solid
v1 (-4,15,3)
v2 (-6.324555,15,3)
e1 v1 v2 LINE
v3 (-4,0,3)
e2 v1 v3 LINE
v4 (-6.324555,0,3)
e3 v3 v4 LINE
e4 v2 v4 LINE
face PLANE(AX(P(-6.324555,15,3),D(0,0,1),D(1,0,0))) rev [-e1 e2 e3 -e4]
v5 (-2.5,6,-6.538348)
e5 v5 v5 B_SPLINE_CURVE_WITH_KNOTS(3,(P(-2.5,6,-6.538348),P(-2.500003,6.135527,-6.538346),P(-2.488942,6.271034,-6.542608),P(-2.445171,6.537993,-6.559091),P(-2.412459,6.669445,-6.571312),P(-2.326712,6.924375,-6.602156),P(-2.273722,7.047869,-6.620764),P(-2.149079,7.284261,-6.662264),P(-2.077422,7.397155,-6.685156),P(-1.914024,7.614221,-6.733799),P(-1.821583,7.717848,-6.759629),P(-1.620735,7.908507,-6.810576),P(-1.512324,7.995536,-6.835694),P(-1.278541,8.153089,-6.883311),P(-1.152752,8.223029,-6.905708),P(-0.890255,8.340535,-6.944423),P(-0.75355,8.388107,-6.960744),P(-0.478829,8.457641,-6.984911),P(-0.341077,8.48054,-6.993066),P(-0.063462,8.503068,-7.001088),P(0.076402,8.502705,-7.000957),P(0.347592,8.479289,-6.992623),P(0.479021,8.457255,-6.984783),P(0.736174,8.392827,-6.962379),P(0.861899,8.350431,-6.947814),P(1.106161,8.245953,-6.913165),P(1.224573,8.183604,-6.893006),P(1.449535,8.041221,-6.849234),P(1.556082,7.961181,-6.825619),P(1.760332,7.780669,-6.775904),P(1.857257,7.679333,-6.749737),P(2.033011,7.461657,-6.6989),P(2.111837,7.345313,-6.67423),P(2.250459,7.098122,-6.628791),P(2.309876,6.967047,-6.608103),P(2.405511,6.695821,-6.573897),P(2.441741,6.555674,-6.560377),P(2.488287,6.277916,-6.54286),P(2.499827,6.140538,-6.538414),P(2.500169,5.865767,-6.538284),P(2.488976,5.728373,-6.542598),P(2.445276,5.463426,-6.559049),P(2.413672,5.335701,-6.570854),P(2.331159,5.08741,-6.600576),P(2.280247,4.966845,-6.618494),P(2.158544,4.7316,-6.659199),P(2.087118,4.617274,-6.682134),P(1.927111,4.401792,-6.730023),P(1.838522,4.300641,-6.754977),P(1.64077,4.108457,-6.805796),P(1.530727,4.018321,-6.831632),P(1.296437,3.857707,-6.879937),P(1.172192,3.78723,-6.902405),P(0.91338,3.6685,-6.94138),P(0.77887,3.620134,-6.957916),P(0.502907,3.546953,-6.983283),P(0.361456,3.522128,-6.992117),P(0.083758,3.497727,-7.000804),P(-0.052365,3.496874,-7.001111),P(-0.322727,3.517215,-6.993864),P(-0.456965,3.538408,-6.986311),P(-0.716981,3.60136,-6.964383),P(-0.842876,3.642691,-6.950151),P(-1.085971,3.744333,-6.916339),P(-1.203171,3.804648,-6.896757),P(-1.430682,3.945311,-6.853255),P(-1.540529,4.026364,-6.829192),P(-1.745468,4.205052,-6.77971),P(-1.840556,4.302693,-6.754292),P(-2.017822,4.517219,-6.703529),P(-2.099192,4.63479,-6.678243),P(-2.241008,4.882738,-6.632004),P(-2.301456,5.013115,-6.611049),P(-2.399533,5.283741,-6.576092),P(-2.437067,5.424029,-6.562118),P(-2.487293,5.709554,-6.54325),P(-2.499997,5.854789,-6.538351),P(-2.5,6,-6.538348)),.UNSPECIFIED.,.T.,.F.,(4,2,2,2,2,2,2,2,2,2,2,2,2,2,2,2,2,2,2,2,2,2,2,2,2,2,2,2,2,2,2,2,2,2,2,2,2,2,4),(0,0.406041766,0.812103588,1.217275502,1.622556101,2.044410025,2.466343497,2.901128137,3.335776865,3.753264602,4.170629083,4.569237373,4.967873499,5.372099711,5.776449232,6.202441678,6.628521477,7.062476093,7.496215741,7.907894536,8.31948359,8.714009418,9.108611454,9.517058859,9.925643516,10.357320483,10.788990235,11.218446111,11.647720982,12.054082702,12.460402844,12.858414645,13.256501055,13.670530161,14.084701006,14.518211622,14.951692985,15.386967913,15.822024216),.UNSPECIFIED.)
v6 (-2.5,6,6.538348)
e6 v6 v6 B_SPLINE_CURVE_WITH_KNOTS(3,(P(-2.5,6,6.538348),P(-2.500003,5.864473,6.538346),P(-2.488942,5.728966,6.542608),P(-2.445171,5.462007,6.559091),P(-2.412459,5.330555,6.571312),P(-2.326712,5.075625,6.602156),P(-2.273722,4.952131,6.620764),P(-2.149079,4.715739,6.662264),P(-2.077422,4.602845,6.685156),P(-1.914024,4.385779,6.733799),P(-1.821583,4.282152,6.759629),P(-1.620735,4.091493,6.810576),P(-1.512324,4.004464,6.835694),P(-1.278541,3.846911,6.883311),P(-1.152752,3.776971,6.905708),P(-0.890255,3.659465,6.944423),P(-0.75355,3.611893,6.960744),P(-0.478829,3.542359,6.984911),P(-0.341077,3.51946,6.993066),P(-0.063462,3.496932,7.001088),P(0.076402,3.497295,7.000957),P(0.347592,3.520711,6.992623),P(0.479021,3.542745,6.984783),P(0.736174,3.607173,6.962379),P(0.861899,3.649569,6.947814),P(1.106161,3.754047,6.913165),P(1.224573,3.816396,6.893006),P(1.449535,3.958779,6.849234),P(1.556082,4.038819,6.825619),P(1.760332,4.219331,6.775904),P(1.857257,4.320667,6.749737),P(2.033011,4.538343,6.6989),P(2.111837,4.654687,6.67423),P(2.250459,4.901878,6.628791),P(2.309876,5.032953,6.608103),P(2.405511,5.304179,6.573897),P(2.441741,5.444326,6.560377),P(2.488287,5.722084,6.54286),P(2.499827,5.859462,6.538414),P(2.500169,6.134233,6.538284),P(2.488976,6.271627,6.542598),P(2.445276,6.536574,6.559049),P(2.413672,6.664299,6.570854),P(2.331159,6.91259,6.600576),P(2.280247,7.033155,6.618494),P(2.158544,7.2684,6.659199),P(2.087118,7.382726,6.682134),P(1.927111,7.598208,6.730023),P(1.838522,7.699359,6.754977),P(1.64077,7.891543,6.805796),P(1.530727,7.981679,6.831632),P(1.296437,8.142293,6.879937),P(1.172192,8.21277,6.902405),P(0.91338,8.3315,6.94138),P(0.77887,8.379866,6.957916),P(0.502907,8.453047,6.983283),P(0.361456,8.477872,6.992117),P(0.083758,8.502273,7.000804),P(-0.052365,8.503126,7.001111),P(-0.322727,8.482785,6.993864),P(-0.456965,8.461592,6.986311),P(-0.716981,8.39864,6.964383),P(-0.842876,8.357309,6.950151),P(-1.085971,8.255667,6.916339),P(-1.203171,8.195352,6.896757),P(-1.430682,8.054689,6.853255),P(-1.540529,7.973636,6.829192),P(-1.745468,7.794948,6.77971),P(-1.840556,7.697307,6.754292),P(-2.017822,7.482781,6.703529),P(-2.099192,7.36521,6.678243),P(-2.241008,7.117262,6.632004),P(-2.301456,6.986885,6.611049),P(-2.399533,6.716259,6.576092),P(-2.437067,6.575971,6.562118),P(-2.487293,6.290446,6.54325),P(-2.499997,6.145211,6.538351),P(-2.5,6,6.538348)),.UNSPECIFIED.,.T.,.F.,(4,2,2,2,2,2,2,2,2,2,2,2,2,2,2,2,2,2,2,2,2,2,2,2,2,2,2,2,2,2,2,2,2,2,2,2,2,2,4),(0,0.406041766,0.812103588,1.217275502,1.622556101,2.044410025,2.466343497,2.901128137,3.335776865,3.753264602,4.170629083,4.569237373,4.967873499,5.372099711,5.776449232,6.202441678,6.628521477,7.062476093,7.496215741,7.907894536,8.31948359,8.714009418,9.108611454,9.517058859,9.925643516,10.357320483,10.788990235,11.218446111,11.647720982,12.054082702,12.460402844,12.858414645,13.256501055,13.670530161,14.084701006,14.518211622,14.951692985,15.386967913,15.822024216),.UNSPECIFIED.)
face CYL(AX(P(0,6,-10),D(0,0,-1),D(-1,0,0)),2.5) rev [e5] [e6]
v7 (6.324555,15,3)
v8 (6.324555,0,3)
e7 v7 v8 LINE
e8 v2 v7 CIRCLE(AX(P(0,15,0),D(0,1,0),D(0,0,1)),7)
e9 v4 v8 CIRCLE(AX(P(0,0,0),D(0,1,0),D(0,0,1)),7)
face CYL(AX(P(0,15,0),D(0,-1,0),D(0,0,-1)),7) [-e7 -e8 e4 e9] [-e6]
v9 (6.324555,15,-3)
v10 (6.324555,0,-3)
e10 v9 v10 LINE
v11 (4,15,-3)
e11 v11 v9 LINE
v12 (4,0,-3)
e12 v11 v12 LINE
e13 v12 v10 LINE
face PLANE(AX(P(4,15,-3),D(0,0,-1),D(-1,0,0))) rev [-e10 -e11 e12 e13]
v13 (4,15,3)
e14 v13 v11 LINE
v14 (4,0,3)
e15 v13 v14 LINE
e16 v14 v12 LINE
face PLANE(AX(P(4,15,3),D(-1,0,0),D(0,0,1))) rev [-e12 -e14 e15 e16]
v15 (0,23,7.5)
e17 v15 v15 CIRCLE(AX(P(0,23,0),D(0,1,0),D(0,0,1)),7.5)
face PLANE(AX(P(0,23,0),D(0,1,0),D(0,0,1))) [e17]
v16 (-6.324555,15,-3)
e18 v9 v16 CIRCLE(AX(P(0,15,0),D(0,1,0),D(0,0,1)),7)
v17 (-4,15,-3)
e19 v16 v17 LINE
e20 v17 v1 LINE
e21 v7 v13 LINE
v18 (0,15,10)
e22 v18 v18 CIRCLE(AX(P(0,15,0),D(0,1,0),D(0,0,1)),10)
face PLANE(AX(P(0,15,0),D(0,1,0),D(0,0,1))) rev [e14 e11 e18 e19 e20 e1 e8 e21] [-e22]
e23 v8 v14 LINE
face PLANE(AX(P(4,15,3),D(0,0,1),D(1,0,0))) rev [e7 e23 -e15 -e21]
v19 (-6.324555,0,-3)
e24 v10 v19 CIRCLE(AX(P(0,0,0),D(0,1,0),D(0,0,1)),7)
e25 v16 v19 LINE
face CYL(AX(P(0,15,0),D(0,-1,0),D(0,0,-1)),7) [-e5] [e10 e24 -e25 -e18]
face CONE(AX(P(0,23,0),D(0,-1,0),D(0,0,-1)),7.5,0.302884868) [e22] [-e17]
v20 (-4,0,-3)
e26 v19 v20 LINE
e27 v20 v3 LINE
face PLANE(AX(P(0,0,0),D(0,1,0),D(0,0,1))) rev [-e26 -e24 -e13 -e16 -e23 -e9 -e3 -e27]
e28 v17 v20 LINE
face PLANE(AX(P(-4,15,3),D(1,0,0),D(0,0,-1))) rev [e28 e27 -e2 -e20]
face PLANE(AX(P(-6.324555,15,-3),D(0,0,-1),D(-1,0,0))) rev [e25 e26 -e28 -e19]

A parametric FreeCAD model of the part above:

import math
import FreeCAD as App
import Part
import Sketcher
from FreeCAD import Vector

doc = App.newDocument("Part")
params = doc.addObject("Spreadsheet::Sheet", "Params")
for row, (alias, value) in enumerate([
    ("sketch1_radius", "7 mm"),
    ("sketch1_height", "6 mm"),
    ("pad1_length", "15 mm"),
    ("sketch2_diameter", "15 mm"),
    ("sketch3_diameter", "20 mm"),
    ("sketch4_diameter", "5 mm"),
], start=1):
    params.set(f"A{row}", alias)
    params.set(f"B{row}", "=" + value)
    params.setAlias(f"B{row}", alias)

body = doc.addObject("PartDesign::Body", "Body")

sketch1 = body.newObject("Sketcher::SketchObject", "Sketch")
sketch1.AttachmentSupport = (doc.getObject("XZ_Plane"), [""])
sketch1.MapMode = "FlatFace"
sketch1.addGeometry([
    Part.LineSegment(Vector(-4, 3, 0), Vector(-6.3, 3, 0)),
    Part.ArcOfCircle(Part.Circle(Vector(0, 0, 0), Vector(0, 0, 1), 7), math.radians(25), math.radians(155)),
    Part.LineSegment(Vector(6.3, 3, 0), Vector(4, 3, 0)),
    Part.LineSegment(Vector(4, 3, 0), Vector(4, -3, 0)),
    Part.LineSegment(Vector(4, -3, 0), Vector(6.3, -3, 0)),
    Part.ArcOfCircle(Part.Circle(Vector(0, 0, 0), Vector(0, 0, 1), 7), math.radians(-155), math.radians(-25)),
    Part.LineSegment(Vector(-6.3, -3, 0), Vector(-4, -3, 0)),
    Part.LineSegment(Vector(-4, -3, 0), Vector(-4, 3, 0)),
], False)
sketch1.addConstraint([
    Sketcher.Constraint("Coincident", 0, 2, 1, 2),
    Sketcher.Constraint("Coincident", 1, 1, 2, 1),
    Sketcher.Constraint("Coincident", 2, 2, 3, 1),
    Sketcher.Constraint("Coincident", 3, 2, 4, 1),
    Sketcher.Constraint("Coincident", 4, 2, 5, 2),
    Sketcher.Constraint("Coincident", 5, 1, 6, 1),
    Sketcher.Constraint("Coincident", 6, 2, 7, 1),
    Sketcher.Constraint("Coincident", 7, 2, 0, 1),
    Sketcher.Constraint("Horizontal", 0),
    Sketcher.Constraint("Horizontal", 2),
    Sketcher.Constraint("Vertical", 3),
    Sketcher.Constraint("Horizontal", 4),
    Sketcher.Constraint("Horizontal", 6),
    Sketcher.Constraint("Vertical", 7),
    Sketcher.Constraint("Coincident", 1, 3, -1, 1),
    Sketcher.Constraint("Coincident", 5, 3, -1, 1),
    Sketcher.Constraint("Equal", 1, 5),
    Sketcher.Constraint("Symmetric", 2, 2, 6, 2, -1, 1),
    Sketcher.Constraint("Horizontal", 0, 2, 1, 1),
    Sketcher.Constraint("Horizontal", 4, 2, 5, 1),
    Sketcher.Constraint("Radius", 1, 7.0),
    Sketcher.Constraint("DistanceY", 3, 2, 3, 1, 6.0),
    Sketcher.Constraint("DistanceX", -1, 1, 2, 2, 4.0),
])
sketch1.setExpression("Constraints[20]", "Params.sketch1_radius")
sketch1.setExpression("Constraints[21]", "Params.sketch1_height")
pad1 = body.newObject("PartDesign::Pad", "Pad")
pad1.Profile = sketch1
pad1.setExpression("Length", "Params.pad1_length")
pad1.Reversed = True

sketch2 = body.newObject("Sketcher::SketchObject", "Sketch001")
sketch2.AttachmentSupport = (doc.getObject("XZ_Plane"), [""])
sketch2.MapMode = "FlatFace"
sketch2.AttachmentOffset = App.Placement(Vector(0, 0, -23), App.Rotation())
sketch2.addGeometry(Part.Circle(Vector(0, 0, 0), Vector(0, 0, 1), 8), False)
sketch2.addConstraint([
    Sketcher.Constraint("Coincident", 0, 3, -1, 1),
    Sketcher.Constraint("Diameter", 0, 15.0),
])
sketch2.setExpression("Constraints[1]", "Params.sketch2_diameter")

sketch3 = body.newObject("Sketcher::SketchObject", "Sketch002")
sketch3.AttachmentSupport = (doc.getObject("XZ_Plane"), [""])
sketch3.MapMode = "FlatFace"
sketch3.AttachmentOffset = App.Placement(Vector(0, 0, -15), App.Rotation())
sketch3.addGeometry(Part.Circle(Vector(0, 0, 0), Vector(0, 0, 1), 10), False)
sketch3.addConstraint([
    Sketcher.Constraint("Coincident", 0, 3, -1, 1),
    Sketcher.Constraint("Diameter", 0, 20.0),
])
sketch3.setExpression("Constraints[1]", "Params.sketch3_diameter")

additiveloft = body.newObject("PartDesign::AdditiveLoft", "AdditiveLoft")
additiveloft.Profile = sketch2
additiveloft.Sections = [sketch3]

sketch4 = body.newObject("Sketcher::SketchObject", "Sketch003")
sketch4.AttachmentSupport = (doc.getObject("XY_Plane"), [""])
sketch4.MapMode = "FlatFace"
sketch4.AttachmentOffset = App.Placement(Vector(0, 0, -11), App.Rotation())
sketch4.addGeometry(Part.Circle(Vector(0, 6, 0), Vector(0, 0, 1), 2.5), False)
sketch4.addConstraint([
    Sketcher.Constraint("PointOnObject", 0, 3, -2),
    Sketcher.Constraint("Diameter", 0, 5.0),
    Sketcher.Constraint("DistanceY", -1, 1, 0, 3, 6.0),
])
sketch4.setExpression("Constraints[1]", "Params.sketch4_diameter")
pocket1 = body.newObject("PartDesign::Pocket", "Pocket")
pocket1.Profile = sketch4
pocket1.Type = "ThroughAll"
pocket1.Midplane = True

doc.recompute()
